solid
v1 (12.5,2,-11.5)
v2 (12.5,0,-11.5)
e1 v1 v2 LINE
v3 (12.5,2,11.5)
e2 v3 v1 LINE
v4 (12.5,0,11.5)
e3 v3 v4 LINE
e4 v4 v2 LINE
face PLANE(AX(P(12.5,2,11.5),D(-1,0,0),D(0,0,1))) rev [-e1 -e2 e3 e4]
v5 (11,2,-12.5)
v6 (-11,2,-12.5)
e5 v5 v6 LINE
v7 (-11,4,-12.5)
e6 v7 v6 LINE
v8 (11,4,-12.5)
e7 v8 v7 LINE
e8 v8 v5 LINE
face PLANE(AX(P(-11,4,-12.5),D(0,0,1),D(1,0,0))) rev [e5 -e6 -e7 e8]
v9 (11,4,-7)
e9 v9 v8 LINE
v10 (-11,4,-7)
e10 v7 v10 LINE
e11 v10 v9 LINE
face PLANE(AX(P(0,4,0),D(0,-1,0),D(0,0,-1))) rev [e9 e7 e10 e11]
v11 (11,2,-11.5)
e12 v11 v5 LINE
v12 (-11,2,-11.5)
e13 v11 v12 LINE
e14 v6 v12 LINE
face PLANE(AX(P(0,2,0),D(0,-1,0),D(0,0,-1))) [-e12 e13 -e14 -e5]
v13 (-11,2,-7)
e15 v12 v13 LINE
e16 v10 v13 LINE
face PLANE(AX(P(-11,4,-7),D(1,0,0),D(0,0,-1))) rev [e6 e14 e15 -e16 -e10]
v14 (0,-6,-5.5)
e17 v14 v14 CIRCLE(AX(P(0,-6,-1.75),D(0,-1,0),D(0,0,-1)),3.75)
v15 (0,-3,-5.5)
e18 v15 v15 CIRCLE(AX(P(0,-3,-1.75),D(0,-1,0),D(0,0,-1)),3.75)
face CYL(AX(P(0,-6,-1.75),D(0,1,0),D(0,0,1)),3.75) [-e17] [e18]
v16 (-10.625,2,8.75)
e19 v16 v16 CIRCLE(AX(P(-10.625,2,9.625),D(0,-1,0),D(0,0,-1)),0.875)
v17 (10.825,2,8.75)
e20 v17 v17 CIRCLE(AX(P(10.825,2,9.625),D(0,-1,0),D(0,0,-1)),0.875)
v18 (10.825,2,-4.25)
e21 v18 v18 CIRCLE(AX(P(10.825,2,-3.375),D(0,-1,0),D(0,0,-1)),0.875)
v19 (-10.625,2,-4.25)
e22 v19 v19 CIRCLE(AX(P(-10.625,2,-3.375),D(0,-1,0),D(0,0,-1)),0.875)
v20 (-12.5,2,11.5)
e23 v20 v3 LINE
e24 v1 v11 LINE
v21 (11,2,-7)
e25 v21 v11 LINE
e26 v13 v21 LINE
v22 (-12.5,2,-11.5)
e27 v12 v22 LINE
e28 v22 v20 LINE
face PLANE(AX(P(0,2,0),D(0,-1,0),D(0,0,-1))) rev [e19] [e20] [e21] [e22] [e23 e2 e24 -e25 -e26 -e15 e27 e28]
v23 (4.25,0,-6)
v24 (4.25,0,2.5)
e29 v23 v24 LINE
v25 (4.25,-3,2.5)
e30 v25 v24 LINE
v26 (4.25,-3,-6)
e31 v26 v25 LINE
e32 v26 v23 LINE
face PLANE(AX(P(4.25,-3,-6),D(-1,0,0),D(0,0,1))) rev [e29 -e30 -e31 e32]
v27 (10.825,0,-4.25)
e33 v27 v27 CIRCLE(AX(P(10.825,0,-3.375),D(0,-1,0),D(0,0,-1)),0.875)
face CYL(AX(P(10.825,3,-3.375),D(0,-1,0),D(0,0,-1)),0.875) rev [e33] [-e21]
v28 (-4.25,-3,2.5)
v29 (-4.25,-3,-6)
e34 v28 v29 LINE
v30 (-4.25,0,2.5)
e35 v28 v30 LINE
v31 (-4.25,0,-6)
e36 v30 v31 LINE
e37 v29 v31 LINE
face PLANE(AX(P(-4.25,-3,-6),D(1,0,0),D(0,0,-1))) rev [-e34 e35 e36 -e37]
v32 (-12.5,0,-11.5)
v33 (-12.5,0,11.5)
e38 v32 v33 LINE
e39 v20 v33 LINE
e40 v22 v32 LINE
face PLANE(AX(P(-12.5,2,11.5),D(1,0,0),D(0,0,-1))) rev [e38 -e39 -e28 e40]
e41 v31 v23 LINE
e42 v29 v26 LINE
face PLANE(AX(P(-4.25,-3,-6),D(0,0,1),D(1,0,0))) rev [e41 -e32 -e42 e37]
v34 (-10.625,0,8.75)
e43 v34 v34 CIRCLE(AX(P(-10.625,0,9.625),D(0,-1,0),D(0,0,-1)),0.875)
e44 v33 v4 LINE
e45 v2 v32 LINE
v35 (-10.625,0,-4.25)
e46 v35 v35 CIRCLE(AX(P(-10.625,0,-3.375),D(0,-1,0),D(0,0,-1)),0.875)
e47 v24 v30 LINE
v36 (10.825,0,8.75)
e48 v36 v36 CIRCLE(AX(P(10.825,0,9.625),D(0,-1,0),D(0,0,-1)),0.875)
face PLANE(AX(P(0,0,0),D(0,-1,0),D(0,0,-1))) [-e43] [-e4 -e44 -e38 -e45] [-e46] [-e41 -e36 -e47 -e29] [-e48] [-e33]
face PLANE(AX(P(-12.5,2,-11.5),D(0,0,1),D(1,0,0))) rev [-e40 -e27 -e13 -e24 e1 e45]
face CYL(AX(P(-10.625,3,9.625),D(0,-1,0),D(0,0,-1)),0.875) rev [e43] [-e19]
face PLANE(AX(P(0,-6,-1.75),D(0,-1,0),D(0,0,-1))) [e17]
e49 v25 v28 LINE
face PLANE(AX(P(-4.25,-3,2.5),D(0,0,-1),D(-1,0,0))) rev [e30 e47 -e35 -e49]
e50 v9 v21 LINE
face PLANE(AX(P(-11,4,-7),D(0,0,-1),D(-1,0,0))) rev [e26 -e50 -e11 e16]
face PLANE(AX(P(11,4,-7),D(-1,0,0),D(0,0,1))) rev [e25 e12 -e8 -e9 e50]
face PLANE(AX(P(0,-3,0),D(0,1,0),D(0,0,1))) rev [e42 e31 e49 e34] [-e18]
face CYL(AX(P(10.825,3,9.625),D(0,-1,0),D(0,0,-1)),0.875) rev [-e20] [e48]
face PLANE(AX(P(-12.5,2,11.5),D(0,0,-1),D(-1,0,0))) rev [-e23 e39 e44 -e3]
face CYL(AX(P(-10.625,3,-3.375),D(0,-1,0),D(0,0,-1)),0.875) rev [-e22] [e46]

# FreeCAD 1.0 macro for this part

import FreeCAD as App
import Part
import Sketcher

V = App.Vector
Q = App.Units.Quantity

doc = App.newDocument("Part")
params = doc.addObject("Spreadsheet::Sheet", "Params")
for row, (alias, value) in enumerate([
    ("sketch1_width", "25 mm"),
    ("sketch1_height", "23 mm"),
    ("pad1_length", "2 mm"),
    ("sketch2_width", "8.5 mm"),
    ("pad2_length", "3 mm"),
    ("sketch3_diameter", "7.5 mm"),
    ("pad3_length", "3 mm"),
    ("sketch4_diameter", "1.75 mm"),
    ("pocket1_length", "3 mm"),
    ("sketch5_width", "22 mm"),
    ("sketch5_height", "5.5 mm"),
    ("pad4_length", "2 mm"),
], start=1):
    params.set(f"A{row}", alias)
    params.set(f"B{row}", "=" + value)
    params.setAlias(f"B{row}", alias)

body = doc.addObject("PartDesign::Body", "Body")

# Sketch on XZ plane
sketch1 = body.newObject("Sketcher::SketchObject", "Sketch")
sketch1.AttachmentSupport = (doc.getObject("XZ_Plane"), [""])
sketch1.MapMode = "FlatFace"
sketch1.addGeometry(Part.LineSegment(V(-12.5, -11.5, 0), V(-12.5, 11.5, 0)), False)
sketch1.addGeometry(Part.LineSegment(V(-12.5, 11.5, 0), V(12.5, 11.5, 0)), False)
sketch1.addGeometry(Part.LineSegment(V(12.5, 11.5, 0), V(12.5, -11.5, 0)), False)
sketch1.addGeometry(Part.LineSegment(V(12.5, -11.5, 0), V(-12.5, -11.5, 0)), False)
sketch1.addConstraint(Sketcher.Constraint("Coincident", 0, 2, 1, 1))
sketch1.addConstraint(Sketcher.Constraint("Coincident", 1, 2, 2, 1))
sketch1.addConstraint(Sketcher.Constraint("Coincident", 2, 2, 3, 1))
sketch1.addConstraint(Sketcher.Constraint("Coincident", 3, 2, 0, 1))
sketch1.addConstraint(Sketcher.Constraint("Vertical", 0))
sketch1.addConstraint(Sketcher.Constraint("Horizontal", 1))
sketch1.addConstraint(Sketcher.Constraint("Vertical", 2))
sketch1.addConstraint(Sketcher.Constraint("Horizontal", 3))
sketch1.addConstraint(Sketcher.Constraint("Symmetric", 0, 2, 2, 2, -1, 1))
sketch1.addConstraint(Sketcher.Constraint("DistanceX", 1, 1, 1, 2, Q("25 mm")))
sketch1.addConstraint(Sketcher.Constraint("DistanceY", 0, 1, 0, 2, Q("23 mm")))
sketch1.setExpression("Constraints[9]", "Params.sketch1_width")
sketch1.setExpression("Constraints[10]", "Params.sketch1_height")
pad1 = body.newObject("PartDesign::Pad", "Pad")
pad1.Profile = sketch1
pad1.setExpression("Length", "Params.pad1_length")
pad1.Reversed = True

# Sketch on XZ plane
sketch2 = body.newObject("Sketcher::SketchObject", "Sketch001")
sketch2.AttachmentSupport = (doc.getObject("XZ_Plane"), [""])
sketch2.MapMode = "FlatFace"
sketch2.addGeometry(Part.LineSegment(V(-4.25, 2.5, 0), V(-4.25, -6, 0)), False)
sketch2.addGeometry(Part.LineSegment(V(-4.25, -6, 0), V(4.25, -6, 0)), False)
sketch2.addGeometry(Part.LineSegment(V(4.25, -6, 0), V(4.25, 2.5, 0)), False)
sketch2.addGeometry(Part.LineSegment(V(4.25, 2.5, 0), V(-4.25, 2.5, 0)), False)
sketch2.addConstraint(Sketcher.Constraint("Coincident", 0, 2, 1, 1))
sketch2.addConstraint(Sketcher.Constraint("Coincident", 1, 2, 2, 1))
sketch2.addConstraint(Sketcher.Constraint("Coincident", 2, 2, 3, 1))
sketch2.addConstraint(Sketcher.Constraint("Coincident", 3, 2, 0, 1))
sketch2.addConstraint(Sketcher.Constraint("Vertical", 0))
sketch2.addConstraint(Sketcher.Constraint("Horizontal", 1))
sketch2.addConstraint(Sketcher.Constraint("Vertical", 2))
sketch2.addConstraint(Sketcher.Constraint("Horizontal", 3))
sketch2.addConstraint(Sketcher.Constraint("Equal", 3, 0))
sketch2.addConstraint(Sketcher.Constraint("DistanceX", 1, 1, 1, 2, Q("8.5 mm")))
sketch2.addConstraint(Sketcher.Constraint("DistanceY", 0, 2, -1, 1, Q("6 mm")))
sketch2.addConstraint(Sketcher.Constraint("DistanceX", 0, 2, -1, 1, Q("4.25 mm")))
sketch2.setExpression("Constraints[9]", "Params.sketch2_width")
pad2 = body.newObject("PartDesign::Pad", "Pad001")
pad2.Profile = sketch2
pad2.setExpression("Length", "Params.pad2_length")

# Sketch on XZ plane
sketch3 = body.newObject("Sketcher::SketchObject", "Sketch002")
sketch3.AttachmentSupport = (doc.getObject("XZ_Plane"), [""])
sketch3.MapMode = "FlatFace"
sketch3.AttachmentOffset = App.Placement(V(0, 0, 3), App.Rotation())
sketch3.addGeometry(Part.Circle(V(0, -1.75, 0), V(0, 0, 1), 3.75), False)
sketch3.addConstraint(Sketcher.Constraint("PointOnObject", 0, 3, -2))
sketch3.addConstraint(Sketcher.Constraint("Diameter", 0, Q("7.5 mm")))
sketch3.addConstraint(Sketcher.Constraint("DistanceY", 0, 3, -1, 1, Q("1.75 mm")))
sketch3.setExpression("Constraints[1]", "Params.sketch3_diameter")
pad3 = body.newObject("PartDesign::Pad", "Pad002")
pad3.Profile = sketch3
pad3.setExpression("Length", "Params.pad3_length")

# Sketch on XZ plane
sketch4 = body.newObject("Sketcher::SketchObject", "Sketch003")
sketch4.AttachmentSupport = (doc.getObject("XZ_Plane"), [""])
sketch4.MapMode = "FlatFace"
sketch4.addGeometry(Part.Circle(V(-10.625, 9.625, 0), V(0, 0, 1), 0.875), False)
sketch4.addGeometry(Part.Circle(V(10.825, 9.625, 0), V(0, 0, 1), 0.875), False)
sketch4.addGeometry(Part.Circle(V(10.825, -3.375, 0), V(0, 0, 1), 0.875), False)
sketch4.addGeometry(Part.Circle(V(-10.625, -3.375, 0), V(0, 0, 1), 0.875), False)
sketch4.addConstraint(Sketcher.Constraint("Equal", 0, 1))
sketch4.addConstraint(Sketcher.Constraint("Equal", 1, 2))
sketch4.addConstraint(Sketcher.Constraint("Equal", 2, 3))
sketch4.addConstraint(Sketcher.Constraint("Horizontal", 0, 3, 1, 3))
sketch4.addConstraint(Sketcher.Constraint("Horizontal", 2, 3, 3, 3))
sketch4.addConstraint(Sketcher.Constraint("Vertical", 1, 3, 2, 3))
sketch4.addConstraint(Sketcher.Constraint("Vertical", 0, 3, 3, 3))
sketch4.addConstraint(Sketcher.Constraint("Diameter", 0, Q("1.75 mm")))
sketch4.addConstraint(Sketcher.Constraint("DistanceY", 2, 3, 1, 3, Q("13 mm")))
sketch4.addConstraint(Sketcher.Constraint("DistanceX", 0, 3, 1, 3, Q("21.45 mm")))
sketch4.addConstraint(Sketcher.Constraint("DistanceX", 0, 3, -1, 1, Q("10.625 mm")))
sketch4.addConstraint(Sketcher.Constraint("DistanceY", -1, 1, 0, 3, Q("9.625 mm")))
sketch4.setExpression("Constraints[7]", "Params.sketch4_diameter")
pocket1 = body.newObject("PartDesign::Pocket", "Pocket")
pocket1.Profile = sketch4
pocket1.setExpression("Length", "Params.pocket1_length")

# Sketch on XZ plane
sketch5 = body.newObject("Sketcher::SketchObject", "Sketch004")
sketch5.AttachmentSupport = (doc.getObject("XZ_Plane"), [""])
sketch5.MapMode = "FlatFace"
sketch5.AttachmentOffset = App.Placement(V(0, 0, -2), App.Rotation())
sketch5.addGeometry(Part.LineSegment(V(-11, -12.5, 0), V(-11, -7, 0)), False)
sketch5.addGeometry(Part.LineSegment(V(-11, -7, 0), V(11, -7, 0)), False)
sketch5.addGeometry(Part.LineSegment(V(11, -7, 0), V(11, -12.5, 0)), False)
sketch5.addGeometry(Part.LineSegment(V(11, -12.5, 0), V(-11, -12.5, 0)), False)
sketch5.addConstraint(Sketcher.Constraint("Coincident", 0, 2, 1, 1))
sketch5.addConstraint(Sketcher.Constraint("Coincident", 1, 2, 2, 1))
sketch5.addConstraint(Sketcher.Constraint("Coincident", 2, 2, 3, 1))
sketch5.addConstraint(Sketcher.Constraint("Coincident", 3, 2, 0, 1))
sketch5.addConstraint(Sketcher.Constraint("Vertical", 0))
sketch5.addConstraint(Sketcher.Constraint("Horizontal", 1))
sketch5.addConstraint(Sketcher.Constraint("Vertical", 2))
sketch5.addConstraint(Sketcher.Constraint("Horizontal", 3))
sketch5.addConstraint(Sketcher.Constraint("DistanceX", 1, 1, 1, 2, Q("22 mm")))
sketch5.addConstraint(Sketcher.Constraint("DistanceY", 0, 1, 0, 2, Q("5.5 mm")))
sketch5.addConstraint(Sketcher.Constraint("DistanceX", 0, 2, -1, 1, Q("11 mm")))
sketch5.addConstraint(Sketcher.Constraint("DistanceY", 0, 2, -1, 1, Q("7 mm")))
sketch5.setExpression("Constraints[8]", "Params.sketch5_width")
sketch5.setExpression("Constraints[9]", "Params.sketch5_height")
pad4 = body.newObject("PartDesign::Pad", "Pad003")
pad4.Profile = sketch5
pad4.setExpression("Length", "Params.pad4_length")
pad4.Reversed = True

doc.recompute()
